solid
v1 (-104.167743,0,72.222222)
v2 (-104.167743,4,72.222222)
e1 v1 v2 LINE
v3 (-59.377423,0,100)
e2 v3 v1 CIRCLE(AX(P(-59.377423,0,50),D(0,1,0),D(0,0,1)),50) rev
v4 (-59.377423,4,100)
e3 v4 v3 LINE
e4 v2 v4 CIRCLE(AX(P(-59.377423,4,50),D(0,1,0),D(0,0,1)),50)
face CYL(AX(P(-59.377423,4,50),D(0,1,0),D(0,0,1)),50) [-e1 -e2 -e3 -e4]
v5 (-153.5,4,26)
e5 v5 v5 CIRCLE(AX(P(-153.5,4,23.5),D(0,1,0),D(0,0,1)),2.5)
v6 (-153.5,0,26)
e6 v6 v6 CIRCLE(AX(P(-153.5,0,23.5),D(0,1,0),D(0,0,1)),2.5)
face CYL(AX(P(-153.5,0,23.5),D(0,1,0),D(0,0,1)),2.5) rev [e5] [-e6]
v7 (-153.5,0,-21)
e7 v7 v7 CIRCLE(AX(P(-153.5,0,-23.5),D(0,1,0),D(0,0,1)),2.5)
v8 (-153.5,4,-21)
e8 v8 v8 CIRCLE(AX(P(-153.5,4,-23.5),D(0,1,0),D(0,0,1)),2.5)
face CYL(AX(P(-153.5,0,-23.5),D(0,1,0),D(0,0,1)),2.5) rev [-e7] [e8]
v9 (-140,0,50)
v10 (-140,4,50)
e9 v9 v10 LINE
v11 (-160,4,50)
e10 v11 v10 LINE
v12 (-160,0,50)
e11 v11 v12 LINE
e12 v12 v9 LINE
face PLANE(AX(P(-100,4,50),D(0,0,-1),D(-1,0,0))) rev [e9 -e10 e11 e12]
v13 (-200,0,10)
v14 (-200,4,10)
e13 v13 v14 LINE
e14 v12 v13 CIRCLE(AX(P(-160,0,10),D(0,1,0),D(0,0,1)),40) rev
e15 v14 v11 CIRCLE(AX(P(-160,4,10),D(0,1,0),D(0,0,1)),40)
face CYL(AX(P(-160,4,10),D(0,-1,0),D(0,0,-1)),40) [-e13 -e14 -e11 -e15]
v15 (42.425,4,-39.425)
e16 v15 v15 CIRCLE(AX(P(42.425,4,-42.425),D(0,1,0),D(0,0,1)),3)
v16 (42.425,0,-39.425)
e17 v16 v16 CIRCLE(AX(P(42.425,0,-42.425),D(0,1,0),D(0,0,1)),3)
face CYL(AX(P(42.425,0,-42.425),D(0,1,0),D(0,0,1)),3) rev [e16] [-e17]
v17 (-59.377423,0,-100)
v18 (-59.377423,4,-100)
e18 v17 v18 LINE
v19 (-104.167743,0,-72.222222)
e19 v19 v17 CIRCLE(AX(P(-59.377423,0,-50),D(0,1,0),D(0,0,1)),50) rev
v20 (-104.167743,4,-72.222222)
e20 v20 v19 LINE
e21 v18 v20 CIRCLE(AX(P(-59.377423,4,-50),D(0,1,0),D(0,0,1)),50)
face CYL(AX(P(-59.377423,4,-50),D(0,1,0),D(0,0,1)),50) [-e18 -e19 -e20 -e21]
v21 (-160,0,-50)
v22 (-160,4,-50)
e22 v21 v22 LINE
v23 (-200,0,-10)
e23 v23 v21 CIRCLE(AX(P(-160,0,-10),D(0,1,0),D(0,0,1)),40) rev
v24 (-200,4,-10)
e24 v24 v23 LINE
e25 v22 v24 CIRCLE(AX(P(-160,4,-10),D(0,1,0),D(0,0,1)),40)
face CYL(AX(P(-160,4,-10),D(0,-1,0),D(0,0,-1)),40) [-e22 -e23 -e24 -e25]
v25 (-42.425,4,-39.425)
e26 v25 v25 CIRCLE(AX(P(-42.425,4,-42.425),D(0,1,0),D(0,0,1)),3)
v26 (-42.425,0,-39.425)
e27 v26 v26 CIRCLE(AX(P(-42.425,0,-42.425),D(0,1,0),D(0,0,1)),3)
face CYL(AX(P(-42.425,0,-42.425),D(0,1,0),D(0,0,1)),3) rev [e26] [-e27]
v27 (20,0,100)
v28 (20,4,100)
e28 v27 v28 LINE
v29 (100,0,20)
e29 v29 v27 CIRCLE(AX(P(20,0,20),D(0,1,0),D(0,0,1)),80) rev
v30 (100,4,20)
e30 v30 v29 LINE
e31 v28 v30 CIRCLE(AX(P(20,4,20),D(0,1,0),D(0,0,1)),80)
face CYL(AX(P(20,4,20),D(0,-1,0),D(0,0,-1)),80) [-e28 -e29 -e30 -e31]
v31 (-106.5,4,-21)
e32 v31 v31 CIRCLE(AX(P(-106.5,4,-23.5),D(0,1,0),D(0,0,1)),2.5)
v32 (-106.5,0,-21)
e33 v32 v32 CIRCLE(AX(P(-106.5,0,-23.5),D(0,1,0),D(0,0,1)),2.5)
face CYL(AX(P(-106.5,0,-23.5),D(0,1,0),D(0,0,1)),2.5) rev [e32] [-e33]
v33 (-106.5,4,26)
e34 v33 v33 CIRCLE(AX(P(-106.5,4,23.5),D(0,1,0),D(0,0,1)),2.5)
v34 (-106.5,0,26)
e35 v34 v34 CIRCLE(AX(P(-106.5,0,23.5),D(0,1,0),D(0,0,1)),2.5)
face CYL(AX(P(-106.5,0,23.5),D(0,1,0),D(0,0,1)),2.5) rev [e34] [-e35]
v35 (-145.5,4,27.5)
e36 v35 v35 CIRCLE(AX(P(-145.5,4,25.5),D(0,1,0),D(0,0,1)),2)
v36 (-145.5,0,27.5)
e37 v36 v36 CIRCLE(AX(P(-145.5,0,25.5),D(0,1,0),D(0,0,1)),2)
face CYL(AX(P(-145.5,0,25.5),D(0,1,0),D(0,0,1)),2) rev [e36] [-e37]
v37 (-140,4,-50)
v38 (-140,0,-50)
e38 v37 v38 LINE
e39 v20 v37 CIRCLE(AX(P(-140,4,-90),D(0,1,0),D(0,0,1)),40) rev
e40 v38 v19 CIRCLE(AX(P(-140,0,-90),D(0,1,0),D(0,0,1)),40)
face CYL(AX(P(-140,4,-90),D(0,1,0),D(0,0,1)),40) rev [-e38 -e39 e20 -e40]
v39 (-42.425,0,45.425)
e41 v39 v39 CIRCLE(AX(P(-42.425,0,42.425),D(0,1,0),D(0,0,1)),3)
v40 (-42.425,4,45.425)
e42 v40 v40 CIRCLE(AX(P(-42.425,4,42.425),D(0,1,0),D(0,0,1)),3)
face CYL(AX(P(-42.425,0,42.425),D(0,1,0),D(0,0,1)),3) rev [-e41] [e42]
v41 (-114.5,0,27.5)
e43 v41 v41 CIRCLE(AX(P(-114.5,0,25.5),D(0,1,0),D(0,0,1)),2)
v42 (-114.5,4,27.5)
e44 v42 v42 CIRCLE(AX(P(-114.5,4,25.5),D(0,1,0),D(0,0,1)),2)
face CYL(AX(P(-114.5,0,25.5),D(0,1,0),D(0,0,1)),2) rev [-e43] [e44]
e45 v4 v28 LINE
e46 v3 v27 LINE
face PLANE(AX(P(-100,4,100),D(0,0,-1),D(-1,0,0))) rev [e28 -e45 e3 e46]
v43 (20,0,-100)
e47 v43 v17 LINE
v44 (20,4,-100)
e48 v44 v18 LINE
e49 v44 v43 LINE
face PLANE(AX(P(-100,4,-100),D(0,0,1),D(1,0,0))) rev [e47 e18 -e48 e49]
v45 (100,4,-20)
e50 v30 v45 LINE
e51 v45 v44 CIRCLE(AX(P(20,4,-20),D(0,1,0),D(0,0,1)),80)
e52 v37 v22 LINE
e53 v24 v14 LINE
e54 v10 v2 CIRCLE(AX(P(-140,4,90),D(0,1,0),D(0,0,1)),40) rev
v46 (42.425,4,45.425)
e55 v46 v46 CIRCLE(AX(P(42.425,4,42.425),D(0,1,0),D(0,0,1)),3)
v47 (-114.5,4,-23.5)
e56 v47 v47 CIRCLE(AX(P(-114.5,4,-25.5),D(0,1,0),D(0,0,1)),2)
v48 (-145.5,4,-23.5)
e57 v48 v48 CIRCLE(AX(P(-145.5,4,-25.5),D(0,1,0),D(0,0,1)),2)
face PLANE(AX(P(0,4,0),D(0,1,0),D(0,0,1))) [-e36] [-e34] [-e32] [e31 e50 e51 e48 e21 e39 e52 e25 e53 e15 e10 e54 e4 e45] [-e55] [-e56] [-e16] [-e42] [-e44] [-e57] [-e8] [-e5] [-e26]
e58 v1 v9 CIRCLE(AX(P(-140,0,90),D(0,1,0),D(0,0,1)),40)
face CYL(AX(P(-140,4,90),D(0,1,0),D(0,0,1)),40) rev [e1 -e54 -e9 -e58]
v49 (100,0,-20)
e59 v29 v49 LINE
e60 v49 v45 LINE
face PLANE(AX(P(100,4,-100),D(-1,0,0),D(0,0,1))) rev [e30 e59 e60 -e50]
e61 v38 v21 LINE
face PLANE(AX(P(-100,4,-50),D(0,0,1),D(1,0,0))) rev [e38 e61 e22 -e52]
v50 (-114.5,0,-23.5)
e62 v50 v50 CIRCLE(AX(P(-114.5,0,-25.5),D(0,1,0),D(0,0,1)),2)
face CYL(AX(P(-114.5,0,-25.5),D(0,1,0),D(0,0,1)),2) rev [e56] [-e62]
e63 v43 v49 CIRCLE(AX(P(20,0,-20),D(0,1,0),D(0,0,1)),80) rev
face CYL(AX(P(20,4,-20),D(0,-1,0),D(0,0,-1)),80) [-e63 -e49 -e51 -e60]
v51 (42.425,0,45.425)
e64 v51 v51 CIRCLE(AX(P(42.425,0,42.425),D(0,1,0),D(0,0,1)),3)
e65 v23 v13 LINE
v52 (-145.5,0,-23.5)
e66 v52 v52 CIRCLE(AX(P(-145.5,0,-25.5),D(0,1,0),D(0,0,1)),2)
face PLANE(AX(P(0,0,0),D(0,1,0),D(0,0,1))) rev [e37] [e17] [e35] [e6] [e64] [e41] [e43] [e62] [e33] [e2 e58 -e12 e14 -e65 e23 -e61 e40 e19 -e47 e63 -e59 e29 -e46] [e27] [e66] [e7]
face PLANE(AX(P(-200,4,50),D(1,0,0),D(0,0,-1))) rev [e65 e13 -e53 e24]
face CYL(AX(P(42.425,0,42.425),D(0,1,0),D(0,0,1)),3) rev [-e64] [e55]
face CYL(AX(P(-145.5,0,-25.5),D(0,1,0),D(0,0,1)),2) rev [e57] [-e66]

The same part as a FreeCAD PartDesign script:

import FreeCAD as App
import Part
import Sketcher
from FreeCAD import Vector


def edges_at(feature, points):
    """Names of the edges that pass closest to the given points."""
    edges = feature.Shape.Edges
    near = lambda p: min(range(len(edges)), key=lambda i: edges[i].distToShape(Part.Vertex(*p))[0])
    return sorted({f"Edge{near(p) + 1}" for p in points})

doc = App.newDocument("Part")
body = doc.addObject("PartDesign::Body", "Body")

# Sketch on XZ plane
sketch1 = doc.addObject("Sketcher::SketchObject", "Sketch")
body.addObject(sketch1)
sketch1.AttachmentSupport = (doc.XZ_Plane, [""])
sketch1.MapMode = "FlatFace"
sketch1.addGeometry(Part.LineSegment(Vector(100, -100, 0), Vector(-100, -100, 0)), False)
sketch1.addGeometry(Part.LineSegment(Vector(-100, -100, 0), Vector(-100, -50, 0)), False)
sketch1.addGeometry(Part.LineSegment(Vector(-100, -50, 0), Vector(-200, -50, 0)), False)
sketch1.addGeometry(Part.LineSegment(Vector(-200, -50, 0), Vector(-200, 50, 0)), False)
sketch1.addGeometry(Part.LineSegment(Vector(-200, 50, 0), Vector(-100, 50, 0)), False)
sketch1.addGeometry(Part.LineSegment(Vector(-100, 50, 0), Vector(-100, 100, 0)), False)
sketch1.addGeometry(Part.LineSegment(Vector(-100, 100, 0), Vector(100, 100, 0)), False)
sketch1.addGeometry(Part.LineSegment(Vector(100, 100, 0), Vector(100, -100, 0)), False)
sketch1.addConstraint(Sketcher.Constraint("Coincident", 0, 2, 1, 1))
sketch1.addConstraint(Sketcher.Constraint("Coincident", 1, 2, 2, 1))
sketch1.addConstraint(Sketcher.Constraint("Coincident", 2, 2, 3, 1))
sketch1.addConstraint(Sketcher.Constraint("Coincident", 3, 2, 4, 1))
sketch1.addConstraint(Sketcher.Constraint("Coincident", 4, 2, 5, 1))
sketch1.addConstraint(Sketcher.Constraint("Coincident", 5, 2, 6, 1))
sketch1.addConstraint(Sketcher.Constraint("Coincident", 6, 2, 7, 1))
sketch1.addConstraint(Sketcher.Constraint("Coincident", 7, 2, 0, 1))
sketch1.addConstraint(Sketcher.Constraint("Horizontal", 0))
sketch1.addConstraint(Sketcher.Constraint("Vertical", 1))
sketch1.addConstraint(Sketcher.Constraint("Horizontal", 2))
sketch1.addConstraint(Sketcher.Constraint("Vertical", 3))
sketch1.addConstraint(Sketcher.Constraint("Horizontal", 4))
sketch1.addConstraint(Sketcher.Constraint("Vertical", 5))
sketch1.addConstraint(Sketcher.Constraint("Horizontal", 6))
sketch1.addConstraint(Sketcher.Constraint("Vertical", 7))
sketch1.addConstraint(Sketcher.Constraint("Symmetric", 0, 2, 6, 2, -1, 1))
sketch1.addConstraint(Sketcher.Constraint("Symmetric", 1, 2, 4, 2, -1))
sketch1.addConstraint(Sketcher.Constraint("Equal", 4, 3))
sketch1.addConstraint(Sketcher.Constraint("Equal", 6, 7))
sketch1.addConstraint(Sketcher.Constraint("DistanceX", 0, 2, 0, 1, 200.0))
sketch1.addConstraint(Sketcher.Constraint("DistanceX", 2, 2, 2, 1, 100.0))
pad1 = doc.addObject("PartDesign::Pad", "Pad")
body.addObject(pad1)
pad1.Profile = sketch1
pad1.Length = 4
pad1.Reversed = True
doc.recompute()

fillet = doc.addObject("PartDesign::Fillet", "Fillet")
body.addObject(fillet)
fillet.Base = (pad1, edges_at(pad1, [
    (-100, 2, 50),
    (-200, 2, 50),
    (-200, 2, -50),
    (-100, 2, -50),
]))
fillet.Radius = 40

# Sketch on XZ plane
sketch2 = doc.addObject("Sketcher::SketchObject", "Sketch001")
body.addObject(sketch2)
sketch2.AttachmentSupport = (doc.XZ_Plane, [""])
sketch2.MapMode = "FlatFace"
sketch2.AttachmentOffset = App.Placement(Vector(0, 0, -4), App.Rotation())
sketch2.addGeometry(Part.Circle(Vector(42.4, -42.4, 0), Vector(0, 0, 1), 3), False)
sketch2.addGeometry(Part.Circle(Vector(42.4, 42.4, 0), Vector(0, 0, 1), 3), False)
sketch2.addGeometry(Part.Circle(Vector(-42.4, 42.4, 0), Vector(0, 0, 1), 3), False)
sketch2.addGeometry(Part.Circle(Vector(-42.4, -42.4, 0), Vector(0, 0, 1), 3), False)
sketch2.addConstraint(Sketcher.Constraint("Equal", 0, 1))
sketch2.addConstraint(Sketcher.Constraint("Equal", 1, 2))
sketch2.addConstraint(Sketcher.Constraint("Equal", 2, 3))
sketch2.addConstraint(Sketcher.Constraint("Symmetric", 0, 3, 2, 3, -1, 1))
sketch2.addConstraint(Sketcher.Constraint("Symmetric", 1, 3, 3, 3, -1, 1))
sketch2.addConstraint(Sketcher.Constraint("Symmetric", 1, 3, 2, 3, -2))
sketch2.addConstraint(Sketcher.Constraint("Diameter", 0, 6.0))
sketch2.addConstraint(Sketcher.Constraint("DistanceY", 0, 3, 1, 3, 84.85))
sketch2.addConstraint(Sketcher.Constraint("DistanceX", 2, 3, 1, 3, 84.85))
pocket1 = doc.addObject("PartDesign::Pocket", "Pocket")
body.addObject(pocket1)
pocket1.Profile = sketch2
pocket1.Length = 4
pocket1.Reversed = True

# Sketch on XZ plane
sketch3 = doc.addObject("Sketcher::SketchObject", "Sketch002")
body.addObject(sketch3)
sketch3.AttachmentSupport = (doc.XZ_Plane, [""])
sketch3.MapMode = "FlatFace"
sketch3.AttachmentOffset = App.Placement(Vector(0, 0, -4), App.Rotation())
sketch3.addGeometry(Part.Circle(Vector(-114.5, 25.5, 0), Vector(0, 0, 1), 2), False)
sketch3.addGeometry(Part.Circle(Vector(-106.5, -23.5, 0), Vector(0, 0, 1), 2.5), False)
sketch3.addGeometry(Part.Circle(Vector(-153.5, -23.5, 0), Vector(0, 0, 1), 2.5), False)
sketch3.addGeometry(Part.Circle(Vector(-153.5, 23.5, 0), Vector(0, 0, 1), 2.5), False)
sketch3.addGeometry(Part.Circle(Vector(-106.5, 23.5, 0), Vector(0, 0, 1), 2.5), False)
sketch3.addGeometry(Part.Circle(Vector(-145.5, 25.5, 0), Vector(0, 0, 1), 2), False)
sketch3.addGeometry(Part.Circle(Vector(-145.5, -25.5, 0), Vector(0, 0, 1), 2), False)
sketch3.addGeometry(Part.Circle(Vector(-114.5, -25.5, 0), Vector(0, 0, 1), 2), False)
sketch3.addConstraint(Sketcher.Constraint("Equal", 1, 2))
sketch3.addConstraint(Sketcher.Constraint("Equal", 2, 3))
sketch3.addConstraint(Sketcher.Constraint("Equal", 3, 4))
sketch3.addConstraint(Sketcher.Constraint("Equal", 0, 5))
sketch3.addConstraint(Sketcher.Constraint("Equal", 5, 6))
sketch3.addConstraint(Sketcher.Constraint("Equal", 6, 7))
sketch3.addConstraint(Sketcher.Constraint("Symmetric", 2, 3, 3, 3, -1))
sketch3.addConstraint(Sketcher.Constraint("Symmetric", 1, 3, 4, 3, -1))
sketch3.addConstraint(Sketcher.Constraint("Symmetric", 5, 3, 6, 3, -1))
sketch3.addConstraint(Sketcher.Constraint("Symmetric", 0, 3, 7, 3, -1))
sketch3.addConstraint(Sketcher.Constraint("Horizontal", 1, 3, 2, 3))
sketch3.addConstraint(Sketcher.Constraint("Horizontal", 0, 3, 5, 3))
sketch3.addConstraint(Sketcher.Constraint("Diameter", 0, 4.0))
sketch3.addConstraint(Sketcher.Constraint("Diameter", 1, 5.0))
sketch3.addConstraint(Sketcher.Constraint("DistanceX", 0, 3, 1, 3, 8.0))
sketch3.addConstraint(Sketcher.Constraint("DistanceY", 1, 3, 0, 3, 49.0))
sketch3.addConstraint(Sketcher.Constraint("DistanceX", 2, 3, 1, 3, 47.0))
sketch3.addConstraint(Sketcher.Constraint("DistanceY", 3, 3, 0, 3, 2.0))
sketch3.addConstraint(Sketcher.Constraint("DistanceX", 3, 3, 5, 3, 8.0))
sketch3.addConstraint(Sketcher.Constraint("DistanceX", 0, 3, -1, 1, 114.5))
pocket2 = doc.addObject("PartDesign::Pocket", "Pocket001")
body.addObject(pocket2)
pocket2.Profile = sketch3
pocket2.Length = 4
pocket2.Reversed = True
doc.recompute()

fillet2 = doc.addObject("PartDesign::Fillet", "Fillet001")
body.addObject(fillet2)
fillet2.Base = (pocket2, edges_at(pocket2, [(100, 2, 100), (100, 2, -100)]))
fillet2.Radius = 80
doc.recompute()

fillet3 = doc.addObject("PartDesign::Fillet", "Fillet002")
body.addObject(fillet3)
fillet3.Base = (fillet2, edges_at(fillet2, [(-100, 2, -100), (-100, 2, 100)]))
fillet3.Radius = 50

doc.recompute()
